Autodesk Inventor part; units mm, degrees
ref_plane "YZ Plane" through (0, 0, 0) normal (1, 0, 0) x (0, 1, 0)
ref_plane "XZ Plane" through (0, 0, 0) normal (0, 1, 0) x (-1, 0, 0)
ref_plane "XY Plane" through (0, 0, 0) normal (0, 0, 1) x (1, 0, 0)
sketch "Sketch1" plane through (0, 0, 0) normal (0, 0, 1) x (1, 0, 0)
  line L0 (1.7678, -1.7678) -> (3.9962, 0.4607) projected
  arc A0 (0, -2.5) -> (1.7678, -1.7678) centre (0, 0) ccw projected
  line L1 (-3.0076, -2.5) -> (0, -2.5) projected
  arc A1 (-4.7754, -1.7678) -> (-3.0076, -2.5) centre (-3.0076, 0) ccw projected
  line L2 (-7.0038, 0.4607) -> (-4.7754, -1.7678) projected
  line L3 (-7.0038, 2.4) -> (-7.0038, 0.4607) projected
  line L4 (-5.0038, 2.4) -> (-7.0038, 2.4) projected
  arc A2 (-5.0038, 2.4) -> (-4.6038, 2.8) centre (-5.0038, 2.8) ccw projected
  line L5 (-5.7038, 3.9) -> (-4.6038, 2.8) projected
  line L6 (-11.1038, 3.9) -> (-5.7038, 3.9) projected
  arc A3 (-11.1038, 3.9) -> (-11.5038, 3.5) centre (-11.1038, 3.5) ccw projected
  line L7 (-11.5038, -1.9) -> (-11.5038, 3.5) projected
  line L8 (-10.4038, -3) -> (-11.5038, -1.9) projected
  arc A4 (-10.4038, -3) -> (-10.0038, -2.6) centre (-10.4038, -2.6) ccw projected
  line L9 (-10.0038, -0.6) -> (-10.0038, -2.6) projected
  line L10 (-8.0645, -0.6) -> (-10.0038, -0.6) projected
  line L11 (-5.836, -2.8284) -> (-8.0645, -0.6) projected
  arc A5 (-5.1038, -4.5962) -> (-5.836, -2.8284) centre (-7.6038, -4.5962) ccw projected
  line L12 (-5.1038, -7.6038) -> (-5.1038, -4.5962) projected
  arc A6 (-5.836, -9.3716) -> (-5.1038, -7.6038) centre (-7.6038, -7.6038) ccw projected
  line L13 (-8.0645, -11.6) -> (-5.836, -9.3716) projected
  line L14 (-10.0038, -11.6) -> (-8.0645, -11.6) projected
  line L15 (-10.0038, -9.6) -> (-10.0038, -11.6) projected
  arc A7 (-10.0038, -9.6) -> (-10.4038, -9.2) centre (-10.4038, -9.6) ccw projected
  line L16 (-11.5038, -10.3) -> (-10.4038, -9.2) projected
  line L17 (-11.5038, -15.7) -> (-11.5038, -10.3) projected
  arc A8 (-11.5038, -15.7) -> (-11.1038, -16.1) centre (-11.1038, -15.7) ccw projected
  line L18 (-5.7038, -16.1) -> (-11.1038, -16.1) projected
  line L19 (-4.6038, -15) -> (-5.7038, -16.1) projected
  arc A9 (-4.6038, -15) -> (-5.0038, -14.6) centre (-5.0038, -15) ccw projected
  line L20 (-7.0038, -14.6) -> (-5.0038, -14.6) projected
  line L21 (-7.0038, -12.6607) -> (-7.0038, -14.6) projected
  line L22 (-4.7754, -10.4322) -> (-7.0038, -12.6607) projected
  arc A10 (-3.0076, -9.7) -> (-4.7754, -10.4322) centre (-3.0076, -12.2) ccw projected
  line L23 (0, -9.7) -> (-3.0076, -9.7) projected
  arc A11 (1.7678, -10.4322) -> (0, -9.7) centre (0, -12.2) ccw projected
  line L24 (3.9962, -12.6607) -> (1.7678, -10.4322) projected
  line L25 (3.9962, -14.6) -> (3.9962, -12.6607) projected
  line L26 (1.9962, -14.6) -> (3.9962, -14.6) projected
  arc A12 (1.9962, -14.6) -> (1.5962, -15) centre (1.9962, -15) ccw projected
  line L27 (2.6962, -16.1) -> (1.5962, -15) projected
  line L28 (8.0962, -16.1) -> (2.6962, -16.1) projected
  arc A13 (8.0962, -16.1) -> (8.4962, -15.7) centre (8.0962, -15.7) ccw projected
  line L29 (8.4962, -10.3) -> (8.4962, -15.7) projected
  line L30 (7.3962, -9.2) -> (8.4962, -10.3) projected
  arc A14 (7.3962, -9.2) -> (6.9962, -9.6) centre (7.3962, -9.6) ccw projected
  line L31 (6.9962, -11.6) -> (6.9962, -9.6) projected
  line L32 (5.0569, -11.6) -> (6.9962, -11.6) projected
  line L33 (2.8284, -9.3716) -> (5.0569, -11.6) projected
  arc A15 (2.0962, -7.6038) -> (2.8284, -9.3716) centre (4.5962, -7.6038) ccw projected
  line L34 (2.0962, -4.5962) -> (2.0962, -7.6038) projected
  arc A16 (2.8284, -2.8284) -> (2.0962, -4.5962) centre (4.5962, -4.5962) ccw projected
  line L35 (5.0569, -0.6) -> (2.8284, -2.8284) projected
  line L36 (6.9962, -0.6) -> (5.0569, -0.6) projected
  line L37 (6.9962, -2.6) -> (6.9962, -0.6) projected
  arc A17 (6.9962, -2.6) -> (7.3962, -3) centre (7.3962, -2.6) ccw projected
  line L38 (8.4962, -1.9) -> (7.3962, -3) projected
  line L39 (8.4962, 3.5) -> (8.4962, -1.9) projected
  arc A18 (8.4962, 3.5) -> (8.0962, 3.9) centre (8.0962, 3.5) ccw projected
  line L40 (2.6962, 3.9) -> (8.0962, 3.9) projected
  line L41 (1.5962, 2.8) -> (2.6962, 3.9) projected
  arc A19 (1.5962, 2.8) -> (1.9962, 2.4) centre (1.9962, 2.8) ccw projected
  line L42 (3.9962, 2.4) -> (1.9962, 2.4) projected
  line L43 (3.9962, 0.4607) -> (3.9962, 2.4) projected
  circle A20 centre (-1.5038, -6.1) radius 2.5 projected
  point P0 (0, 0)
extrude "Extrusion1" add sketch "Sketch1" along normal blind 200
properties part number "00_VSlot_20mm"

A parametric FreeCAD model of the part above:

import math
import FreeCAD as App
import Part
import Sketcher

V = App.Vector
Q = App.Units.Quantity

doc = App.newDocument("Part")
body = doc.addObject("PartDesign::Body", "Body")

sketch1 = body.newObject("Sketcher::SketchObject", "Sketch")
sketch1.AttachmentSupport = (doc.getObject("XY_Plane"), [""])
sketch1.MapMode = "FlatFace"
sketch1.addGeometry(Part.LineSegment(V(4, 0.46, 0), V(1.77, -1.77, 0)), False)
sketch1.addGeometry(Part.ArcOfCircle(Part.Circle(V(0, 0, 0), V(0, 0, 1), 2.5), math.radians(-90), math.radians(-45)), False)
sketch1.addGeometry(Part.LineSegment(V(0, -2.5, 0), V(-3.01, -2.5, 0)), False)
sketch1.addGeometry(Part.ArcOfCircle(Part.Circle(V(-3.01, 0, 0), V(0, 0, 1), 2.5), math.radians(-135), math.radians(-90)), False)
sketch1.addGeometry(Part.LineSegment(V(-4.78, -1.77, 0), V(-7, 0.46, 0)), False)
sketch1.addGeometry(Part.LineSegment(V(-7, 0.46, 0), V(-7, 2.4, 0)), False)
sketch1.addGeometry(Part.LineSegment(V(-7, 2.4, 0), V(-5, 2.4, 0)), False)
sketch1.addGeometry(Part.ArcOfCircle(Part.Circle(V(-5, 2.8, 0), V(0, 0, 1), 0.4), math.radians(-90), math.radians(0)), False)
sketch1.addGeometry(Part.LineSegment(V(-4.6, 2.8, 0), V(-5.7, 3.9, 0)), False)
sketch1.addGeometry(Part.LineSegment(V(-5.7, 3.9, 0), V(-11.1, 3.9, 0)), False)
sketch1.addGeometry(Part.ArcOfCircle(Part.Circle(V(-11.1, 3.5, 0), V(0, 0, 1), 0.4), math.radians(90), math.radians(180)), False)
sketch1.addGeometry(Part.LineSegment(V(-11.5, 3.5, 0), V(-11.5, -1.9, 0)), False)
sketch1.addGeometry(Part.LineSegment(V(-11.5, -1.9, 0), V(-10.4, -3, 0)), False)
sketch1.addGeometry(Part.ArcOfCircle(Part.Circle(V(-10.4, -2.6, 0), V(0, 0, 1), 0.4), math.radians(-90), math.radians(0)), False)
sketch1.addGeometry(Part.LineSegment(V(-10, -2.6, 0), V(-10, -0.6, 0)), False)
sketch1.addGeometry(Part.LineSegment(V(-10, -0.6, 0), V(-8.06, -0.6, 0)), False)
sketch1.addGeometry(Part.LineSegment(V(-8.06, -0.6, 0), V(-5.84, -2.83, 0)), False)
sketch1.addGeometry(Part.ArcOfCircle(Part.Circle(V(-7.6, -4.6, 0), V(0, 0, 1), 2.5), math.radians(0), math.radians(45)), False)
sketch1.addGeometry(Part.LineSegment(V(-5.1, -4.6, 0), V(-5.1, -7.6, 0)), False)
sketch1.addGeometry(Part.ArcOfCircle(Part.Circle(V(-7.6, -7.6, 0), V(0, 0, 1), 2.5), math.radians(-45), math.radians(0)), False)
sketch1.addGeometry(Part.LineSegment(V(-5.84, -9.37, 0), V(-8.06, -11.6, 0)), False)
sketch1.addGeometry(Part.LineSegment(V(-8.06, -11.6, 0), V(-10, -11.6, 0)), False)
sketch1.addGeometry(Part.LineSegment(V(-10, -11.6, 0), V(-10, -9.6, 0)), False)
sketch1.addGeometry(Part.ArcOfCircle(Part.Circle(V(-10.4, -9.6, 0), V(0, 0, 1), 0.4), math.radians(0), math.radians(90)), False)
sketch1.addGeometry(Part.LineSegment(V(-10.4, -9.2, 0), V(-11.5, -10.3, 0)), False)
sketch1.addGeometry(Part.LineSegment(V(-11.5, -10.3, 0), V(-11.5, -15.7, 0)), False)
sketch1.addGeometry(Part.ArcOfCircle(Part.Circle(V(-11.1, -15.7, 0), V(0, 0, 1), 0.4), math.radians(180), math.radians(270)), False)
sketch1.addGeometry(Part.LineSegment(V(-11.1, -16.1, 0), V(-5.7, -16.1, 0)), False)
sketch1.addGeometry(Part.LineSegment(V(-5.7, -16.1, 0), V(-4.6, -15, 0)), False)
sketch1.addGeometry(Part.ArcOfCircle(Part.Circle(V(-5, -15, 0), V(0, 0, 1), 0.4), math.radians(0), math.radians(90)), False)
sketch1.addGeometry(Part.LineSegment(V(-5, -14.6, 0), V(-7, -14.6, 0)), False)
sketch1.addGeometry(Part.LineSegment(V(-7, -14.6, 0), V(-7, -12.66, 0)), False)
sketch1.addGeometry(Part.LineSegment(V(-7, -12.66, 0), V(-4.78, -10.43, 0)), False)
sketch1.addGeometry(Part.ArcOfCircle(Part.Circle(V(-3.01, -12.2, 0), V(0, 0, 1), 2.5), math.radians(90), math.radians(135)), False)
sketch1.addGeometry(Part.LineSegment(V(-3.01, -9.7, 0), V(0, -9.7, 0)), False)
sketch1.addGeometry(Part.ArcOfCircle(Part.Circle(V(0, -12.2, 0), V(0, 0, 1), 2.5), math.radians(45), math.radians(90)), False)
sketch1.addGeometry(Part.LineSegment(V(1.77, -10.43, 0), V(4, -12.66, 0)), False)
sketch1.addGeometry(Part.LineSegment(V(4, -12.66, 0), V(4, -14.6, 0)), False)
sketch1.addGeometry(Part.LineSegment(V(4, -14.6, 0), V(2, -14.6, 0)), False)
sketch1.addGeometry(Part.ArcOfCircle(Part.Circle(V(2, -15, 0), V(0, 0, 1), 0.4), math.radians(90), math.radians(180)), False)
sketch1.addGeometry(Part.LineSegment(V(1.6, -15, 0), V(2.7, -16.1, 0)), False)
sketch1.addGeometry(Part.LineSegment(V(2.7, -16.1, 0), V(8.1, -16.1, 0)), False)
sketch1.addGeometry(Part.ArcOfCircle(Part.Circle(V(8.1, -15.7, 0), V(0, 0, 1), 0.4), math.radians(-90), math.radians(0)), False)
sketch1.addGeometry(Part.LineSegment(V(8.5, -15.7, 0), V(8.5, -10.3, 0)), False)
sketch1.addGeometry(Part.LineSegment(V(8.5, -10.3, 0), V(7.4, -9.2, 0)), False)
sketch1.addGeometry(Part.ArcOfCircle(Part.Circle(V(7.4, -9.6, 0), V(0, 0, 1), 0.4), math.radians(90), math.radians(180)), False)
sketch1.addGeometry(Part.LineSegment(V(7, -9.6, 0), V(7, -11.6, 0)), False)
sketch1.addGeometry(Part.LineSegment(V(7, -11.6, 0), V(5.06, -11.6, 0)), False)
sketch1.addGeometry(Part.LineSegment(V(5.06, -11.6, 0), V(2.83, -9.37, 0)), False)
sketch1.addGeometry(Part.ArcOfCircle(Part.Circle(V(4.6, -7.6, 0), V(0, 0, 1), 2.5), math.radians(180), math.radians(225)), False)
sketch1.addGeometry(Part.LineSegment(V(2.1, -7.6, 0), V(2.1, -4.6, 0)), False)
sketch1.addGeometry(Part.ArcOfCircle(Part.Circle(V(4.6, -4.6, 0), V(0, 0, 1), 2.5), math.radians(135), math.radians(180)), False)
sketch1.addGeometry(Part.LineSegment(V(2.83, -2.83, 0), V(5.06, -0.6, 0)), False)
sketch1.addGeometry(Part.LineSegment(V(5.06, -0.6, 0), V(7, -0.6, 0)), False)
sketch1.addGeometry(Part.LineSegment(V(7, -0.6, 0), V(7, -2.6, 0)), False)
sketch1.addGeometry(Part.ArcOfCircle(Part.Circle(V(7.4, -2.6, 0), V(0, 0, 1), 0.4), math.radians(180), math.radians(270)), False)
sketch1.addGeometry(Part.LineSegment(V(7.4, -3, 0), V(8.5, -1.9, 0)), False)
sketch1.addGeometry(Part.LineSegment(V(8.5, -1.9, 0), V(8.5, 3.5, 0)), False)
sketch1.addGeometry(Part.ArcOfCircle(Part.Circle(V(8.1, 3.5, 0), V(0, 0, 1), 0.4), math.radians(0), math.radians(90)), False)
sketch1.addGeometry(Part.LineSegment(V(8.1, 3.9, 0), V(2.7, 3.9, 0)), False)
sketch1.addGeometry(Part.LineSegment(V(2.7, 3.9, 0), V(1.6, 2.8, 0)), False)
sketch1.addGeometry(Part.ArcOfCircle(Part.Circle(V(2, 2.8, 0), V(0, 0, 1), 0.4), math.radians(180), math.radians(270)), False)
sketch1.addGeometry(Part.LineSegment(V(2, 2.4, 0), V(4, 2.4, 0)), False)
sketch1.addGeometry(Part.LineSegment(V(4, 2.4, 0), V(4, 0.46, 0)), False)
sketch1.addGeometry(Part.Circle(V(-1.5, -6.1, 0), V(0, 0, 1), 2.5), False)
sketch1.addConstraint(Sketcher.Constraint("Tangent", 0, 2, 1, 2))
sketch1.addConstraint(Sketcher.Constraint("Tangent", 1, 1, 2, 1))
sketch1.addConstraint(Sketcher.Constraint("Tangent", 2, 2, 3, 2))
sketch1.addConstraint(Sketcher.Constraint("Tangent", 3, 1, 4, 1))
sketch1.addConstraint(Sketcher.Constraint("Coincident", 4, 2, 5, 1))
sketch1.addConstraint(Sketcher.Constraint("Coincident", 5, 2, 6, 1))
sketch1.addConstraint(Sketcher.Constraint("Tangent", 6, 2, 7, 1))
sketch1.addConstraint(Sketcher.Constraint("Coincident", 7, 2, 8, 1))
sketch1.addConstraint(Sketcher.Constraint("Coincident", 8, 2, 9, 1))
sketch1.addConstraint(Sketcher.Constraint("Tangent", 9, 2, 10, 1))
sketch1.addConstraint(Sketcher.Constraint("Tangent", 10, 2, 11, 1))
sketch1.addConstraint(Sketcher.Constraint("Coincident", 11, 2, 12, 1))
sketch1.addConstraint(Sketcher.Constraint("Coincident", 12, 2, 13, 1))
sketch1.addConstraint(Sketcher.Constraint("Tangent", 13, 2, 14, 1))
sketch1.addConstraint(Sketcher.Constraint("Coincident", 14, 2, 15, 1))
sketch1.addConstraint(Sketcher.Constraint("Coincident", 15, 2, 16, 1))
sketch1.addConstraint(Sketcher.Constraint("Tangent", 16, 2, 17, 2))
sketch1.addConstraint(Sketcher.Constraint("Tangent", 17, 1, 18, 1))
sketch1.addConstraint(Sketcher.Constraint("Tangent", 18, 2, 19, 2))
sketch1.addConstraint(Sketcher.Constraint("Tangent", 19, 1, 20, 1))
sketch1.addConstraint(Sketcher.Constraint("Coincident", 20, 2, 21, 1))
sketch1.addConstraint(Sketcher.Constraint("Coincident", 21, 2, 22, 1))
sketch1.addConstraint(Sketcher.Constraint("Tangent", 22, 2, 23, 1))
sketch1.addConstraint(Sketcher.Constraint("Coincident", 23, 2, 24, 1))
sketch1.addConstraint(Sketcher.Constraint("Coincident", 24, 2, 25, 1))
sketch1.addConstraint(Sketcher.Constraint("Tangent", 25, 2, 26, 1))
sketch1.addConstraint(Sketcher.Constraint("Tangent", 26, 2, 27, 1))
sketch1.addConstraint(Sketcher.Constraint("Coincident", 27, 2, 28, 1))
sketch1.addConstraint(Sketcher.Constraint("Coincident", 28, 2, 29, 1))
sketch1.addConstraint(Sketcher.Constraint("Tangent", 29, 2, 30, 1))
sketch1.addConstraint(Sketcher.Constraint("Coincident", 30, 2, 31, 1))
sketch1.addConstraint(Sketcher.Constraint("Coincident", 31, 2, 32, 1))
sketch1.addConstraint(Sketcher.Constraint("Tangent", 32, 2, 33, 2))
sketch1.addConstraint(Sketcher.Constraint("Tangent", 33, 1, 34, 1))
sketch1.addConstraint(Sketcher.Constraint("Tangent", 34, 2, 35, 2))
sketch1.addConstraint(Sketcher.Constraint("Tangent", 35, 1, 36, 1))
sketch1.addConstraint(Sketcher.Constraint("Coincident", 36, 2, 37, 1))
sketch1.addConstraint(Sketcher.Constraint("Coincident", 37, 2, 38, 1))
sketch1.addConstraint(Sketcher.Constraint("Tangent", 38, 2, 39, 1))
sketch1.addConstraint(Sketcher.Constraint("Coincident", 39, 2, 40, 1))
sketch1.addConstraint(Sketcher.Constraint("Coincident", 40, 2, 41, 1))
sketch1.addConstraint(Sketcher.Constraint("Tangent", 41, 2, 42, 1))
sketch1.addConstraint(Sketcher.Constraint("Tangent", 42, 2, 43, 1))
sketch1.addConstraint(Sketcher.Constraint("Coincident", 43, 2, 44, 1))
sketch1.addConstraint(Sketcher.Constraint("Coincident", 44, 2, 45, 1))
sketch1.addConstraint(Sketcher.Constraint("Tangent", 45, 2, 46, 1))
sketch1.addConstraint(Sketcher.Constraint("Coincident", 46, 2, 47, 1))
sketch1.addConstraint(Sketcher.Constraint("Coincident", 47, 2, 48, 1))
sketch1.addConstraint(Sketcher.Constraint("Tangent", 48, 2, 49, 2))
sketch1.addConstraint(Sketcher.Constraint("Tangent", 49, 1, 50, 1))
sketch1.addConstraint(Sketcher.Constraint("Tangent", 50, 2, 51, 2))
sketch1.addConstraint(Sketcher.Constraint("Tangent", 51, 1, 52, 1))
sketch1.addConstraint(Sketcher.Constraint("Coincident", 52, 2, 53, 1))
sketch1.addConstraint(Sketcher.Constraint("Coincident", 53, 2, 54, 1))
sketch1.addConstraint(Sketcher.Constraint("Tangent", 54, 2, 55, 1))
sketch1.addConstraint(Sketcher.Constraint("Coincident", 55, 2, 56, 1))
sketch1.addConstraint(Sketcher.Constraint("Coincident", 56, 2, 57, 1))
sketch1.addConstraint(Sketcher.Constraint("Tangent", 57, 2, 58, 1))
sketch1.addConstraint(Sketcher.Constraint("Tangent", 58, 2, 59, 1))
sketch1.addConstraint(Sketcher.Constraint("Coincident", 59, 2, 60, 1))
sketch1.addConstraint(Sketcher.Constraint("Coincident", 60, 2, 61, 1))
sketch1.addConstraint(Sketcher.Constraint("Tangent", 61, 2, 62, 1))
sketch1.addConstraint(Sketcher.Constraint("Coincident", 62, 2, 63, 1))
sketch1.addConstraint(Sketcher.Constraint("Coincident", 63, 2, 0, 1))
sketch1.addConstraint(Sketcher.Constraint("Horizontal", 2))
sketch1.addConstraint(Sketcher.Constraint("Vertical", 5))
sketch1.addConstraint(Sketcher.Constraint("Horizontal", 6))
sketch1.addConstraint(Sketcher.Constraint("Horizontal", 9))
sketch1.addConstraint(Sketcher.Constraint("Vertical", 11))
sketch1.addConstraint(Sketcher.Constraint("Vertical", 14))
sketch1.addConstraint(Sketcher.Constraint("Horizontal", 15))
sketch1.addConstraint(Sketcher.Constraint("Vertical", 18))
sketch1.addConstraint(Sketcher.Constraint("Horizontal", 21))
sketch1.addConstraint(Sketcher.Constraint("Vertical", 22))
sketch1.addConstraint(Sketcher.Constraint("Vertical", 25))
sketch1.addConstraint(Sketcher.Constraint("Horizontal", 27))
sketch1.addConstraint(Sketcher.Constraint("Horizontal", 30))
sketch1.addConstraint(Sketcher.Constraint("Vertical", 31))
sketch1.addConstraint(Sketcher.Constraint("Horizontal", 34))
sketch1.addConstraint(Sketcher.Constraint("Vertical", 37))
sketch1.addConstraint(Sketcher.Constraint("Horizontal", 38))
sketch1.addConstraint(Sketcher.Constraint("Horizontal", 41))
sketch1.addConstraint(Sketcher.Constraint("Vertical", 43))
sketch1.addConstraint(Sketcher.Constraint("Vertical", 46))
sketch1.addConstraint(Sketcher.Constraint("Horizontal", 47))
sketch1.addConstraint(Sketcher.Constraint("Vertical", 50))
sketch1.addConstraint(Sketcher.Constraint("Horizontal", 53))
sketch1.addConstraint(Sketcher.Constraint("Vertical", 54))
sketch1.addConstraint(Sketcher.Constraint("Vertical", 57))
sketch1.addConstraint(Sketcher.Constraint("Horizontal", 59))
sketch1.addConstraint(Sketcher.Constraint("Horizontal", 62))
sketch1.addConstraint(Sketcher.Constraint("Vertical", 63))
sketch1.addConstraint(Sketcher.Constraint("Coincident", 1, 3, -1, 1))
sketch1.addConstraint(Sketcher.Constraint("Equal", 1, 3))
sketch1.addConstraint(Sketcher.Constraint("Equal", 7, 10))
sketch1.addConstraint(Sketcher.Constraint("Equal", 10, 13))
sketch1.addConstraint(Sketcher.Constraint("Equal", 3, 17))
sketch1.addConstraint(Sketcher.Constraint("Equal", 17, 19))
sketch1.addConstraint(Sketcher.Constraint("Equal", 13, 23))
sketch1.addConstraint(Sketcher.Constraint("Equal", 23, 26))
sketch1.addConstraint(Sketcher.Constraint("Equal", 26, 29))
sketch1.addConstraint(Sketcher.Constraint("Equal", 19, 33))
sketch1.addConstraint(Sketcher.Constraint("Equal", 33, 35))
sketch1.addConstraint(Sketcher.Constraint("Equal", 29, 39))
sketch1.addConstraint(Sketcher.Constraint("Equal", 39, 42))
sketch1.addConstraint(Sketcher.Constraint("Equal", 42, 45))
sketch1.addConstraint(Sketcher.Constraint("Equal", 35, 49))
sketch1.addConstraint(Sketcher.Constraint("Equal", 49, 51))
sketch1.addConstraint(Sketcher.Constraint("Equal", 45, 55))
sketch1.addConstraint(Sketcher.Constraint("Equal", 55, 58))
sketch1.addConstraint(Sketcher.Constraint("Equal", 58, 61))
sketch1.addConstraint(Sketcher.Constraint("Equal", 51, 64))
sketch1.addConstraint(Sketcher.Constraint("PointOnObject", 35, 3, -2))
sketch1.addConstraint(Sketcher.Constraint("Perpendicular", 0, 4))
sketch1.addConstraint(Sketcher.Constraint("Parallel", 4, 8))
sketch1.addConstraint(Sketcher.Constraint("Parallel", 8, 12))
sketch1.addConstraint(Sketcher.Constraint("Parallel", 12, 16))
sketch1.addConstraint(Sketcher.Constraint("Perpendicular", 16, 20))
sketch1.addConstraint(Sketcher.Constraint("Parallel", 20, 24))
sketch1.addConstraint(Sketcher.Constraint("Parallel", 24, 28))
sketch1.addConstraint(Sketcher.Constraint("Parallel", 28, 32))
sketch1.addConstraint(Sketcher.Constraint("Perpendicular", 32, 36))
sketch1.addConstraint(Sketcher.Constraint("Parallel", 36, 40))
sketch1.addConstraint(Sketcher.Constraint("Parallel", 40, 44))
sketch1.addConstraint(Sketcher.Constraint("Parallel", 44, 48))
sketch1.addConstraint(Sketcher.Constraint("Perpendicular", 48, 52))
sketch1.addConstraint(Sketcher.Constraint("Parallel", 52, 56))
sketch1.addConstraint(Sketcher.Constraint("Parallel", 56, 60))
sketch1.addConstraint(Sketcher.Constraint("Horizontal", 29, 3, 39, 3))
sketch1.addConstraint(Sketcher.Constraint("Horizontal", 26, 3, 42, 3))
sketch1.addConstraint(Sketcher.Constraint("Horizontal", 23, 3, 45, 3))
sketch1.addConstraint(Sketcher.Constraint("Horizontal", 19, 3, 49, 3))
sketch1.addConstraint(Sketcher.Constraint("Horizontal", 17, 3, 51, 3))
sketch1.addConstraint(Sketcher.Constraint("Horizontal", 13, 3, 55, 3))
sketch1.addConstraint(Sketcher.Constraint("Horizontal", 10, 3, 58, 3))
sketch1.addConstraint(Sketcher.Constraint("Horizontal", 7, 3, 61, 3))
sketch1.addConstraint(Sketcher.Constraint("Horizontal", 0, 2, 3, 1))
sketch1.addConstraint(Sketcher.Constraint("Horizontal", 61, 3, 7, 2))
sketch1.addConstraint(Sketcher.Constraint("Horizontal", 39, 3, 28, 2))
sketch1.addConstraint(Sketcher.Constraint("Horizontal", 31, 2, 36, 2))
sketch1.addConstraint(Sketcher.Constraint("Horizontal", 28, 2, 39, 2))
sketch1.addConstraint(Sketcher.Constraint("Horizontal", 24, 2, 43, 2))
sketch1.addConstraint(Sketcher.Constraint("Horizontal", 21, 2, 46, 2))
sketch1.addConstraint(Sketcher.Constraint("Horizontal", 15, 2, 52, 2))
sketch1.addConstraint(Sketcher.Constraint("Horizontal", 11, 2, 56, 2))
sketch1.addConstraint(Sketcher.Constraint("Horizontal", 7, 2, 60, 2))
sketch1.addConstraint(Sketcher.Constraint("Horizontal", 4, 2, 63, 2))
sketch1.addConstraint(Sketcher.Constraint("Vertical", 13, 3, 23, 3))
sketch1.addConstraint(Sketcher.Constraint("Vertical", 10, 3, 26, 3))
sketch1.addConstraint(Sketcher.Constraint("Vertical", 7, 3, 29, 3))
sketch1.addConstraint(Sketcher.Constraint("Vertical", 3, 3, 33, 3))
sketch1.addConstraint(Sketcher.Constraint("Vertical", 45, 3, 55, 3))
sketch1.addConstraint(Sketcher.Constraint("Vertical", 42, 3, 58, 3))
sketch1.addConstraint(Sketcher.Constraint("Vertical", 39, 3, 61, 3))
sketch1.addConstraint(Sketcher.Constraint("Vertical", 23, 3, 12, 2))
sketch1.addConstraint(Sketcher.Constraint("Vertical", 15, 2, 20, 2))
sketch1.addConstraint(Sketcher.Constraint("Vertical", 12, 2, 23, 2))
sketch1.addConstraint(Sketcher.Constraint("Vertical", 8, 2, 27, 2))
sketch1.addConstraint(Sketcher.Constraint("Vertical", 5, 2, 30, 2))
sketch1.addConstraint(Sketcher.Constraint("Vertical", 55, 3, 44, 2))
sketch1.addConstraint(Sketcher.Constraint("Equal", 30, 38))
sketch1.addConstraint(Sketcher.Constraint("Equal", 27, 41))
sketch1.addConstraint(Sketcher.Constraint("Equal", 21, 47))
sketch1.addConstraint(Sketcher.Constraint("Equal", 53, 5))
sketch1.addConstraint(Sketcher.Constraint("Equal", 59, 11))
sketch1.addConstraint(Sketcher.Constraint("Equal", 62, 14))
sketch1.addConstraint(Sketcher.Constraint("Equal", 34, 18))
sketch1.addConstraint(Sketcher.Constraint("Equal", 14, 22))
sketch1.addConstraint(Sketcher.Constraint("Equal", 11, 25))
sketch1.addConstraint(Sketcher.Constraint("Equal", 5, 31))
sketch1.addConstraint(Sketcher.Constraint("Equal", 8, 12))
sketch1.addConstraint(Sketcher.Constraint("Equal", 4, 16))
sketch1.addConstraint(Sketcher.Constraint("Diameter", 64, Q("5 mm")))
sketch1.addConstraint(Sketcher.Constraint("Radius", 7, Q("0.4 mm")))
sketch1.addConstraint(Sketcher.Constraint("DistanceX", 6, 1, 6, 2, Q("2 mm")))
sketch1.addConstraint(Sketcher.Constraint("DistanceX", 9, 2, 9, 1, Q("5.4 mm")))
sketch1.addConstraint(Sketcher.Constraint("DistanceY", 29, 3, -1, 1, Q("15 mm")))
sketch1.addConstraint(Sketcher.Constraint("DistanceY", 12, 2, -1, 1, Q("3 mm")))
sketch1.addConstraint(Sketcher.Constraint("DistanceY", -1, 1, 10, 3, Q("3.5 mm")))
sketch1.addConstraint(Sketcher.Constraint("DistanceY", 64, 3, -1, 1, Q("6.1 mm")))
sketch1.addConstraint(Sketcher.Constraint("DistanceX", 2, 2, 2, 1, Q("3.0076 mm")))
sketch1.addConstraint(Sketcher.Constraint("DistanceX", 64, 3, -1, 1, Q("1.5038 mm")))
pad1 = body.newObject("PartDesign::Pad", "Pad")
pad1.Profile = sketch1
pad1.Length = 200

doc.recompute()
